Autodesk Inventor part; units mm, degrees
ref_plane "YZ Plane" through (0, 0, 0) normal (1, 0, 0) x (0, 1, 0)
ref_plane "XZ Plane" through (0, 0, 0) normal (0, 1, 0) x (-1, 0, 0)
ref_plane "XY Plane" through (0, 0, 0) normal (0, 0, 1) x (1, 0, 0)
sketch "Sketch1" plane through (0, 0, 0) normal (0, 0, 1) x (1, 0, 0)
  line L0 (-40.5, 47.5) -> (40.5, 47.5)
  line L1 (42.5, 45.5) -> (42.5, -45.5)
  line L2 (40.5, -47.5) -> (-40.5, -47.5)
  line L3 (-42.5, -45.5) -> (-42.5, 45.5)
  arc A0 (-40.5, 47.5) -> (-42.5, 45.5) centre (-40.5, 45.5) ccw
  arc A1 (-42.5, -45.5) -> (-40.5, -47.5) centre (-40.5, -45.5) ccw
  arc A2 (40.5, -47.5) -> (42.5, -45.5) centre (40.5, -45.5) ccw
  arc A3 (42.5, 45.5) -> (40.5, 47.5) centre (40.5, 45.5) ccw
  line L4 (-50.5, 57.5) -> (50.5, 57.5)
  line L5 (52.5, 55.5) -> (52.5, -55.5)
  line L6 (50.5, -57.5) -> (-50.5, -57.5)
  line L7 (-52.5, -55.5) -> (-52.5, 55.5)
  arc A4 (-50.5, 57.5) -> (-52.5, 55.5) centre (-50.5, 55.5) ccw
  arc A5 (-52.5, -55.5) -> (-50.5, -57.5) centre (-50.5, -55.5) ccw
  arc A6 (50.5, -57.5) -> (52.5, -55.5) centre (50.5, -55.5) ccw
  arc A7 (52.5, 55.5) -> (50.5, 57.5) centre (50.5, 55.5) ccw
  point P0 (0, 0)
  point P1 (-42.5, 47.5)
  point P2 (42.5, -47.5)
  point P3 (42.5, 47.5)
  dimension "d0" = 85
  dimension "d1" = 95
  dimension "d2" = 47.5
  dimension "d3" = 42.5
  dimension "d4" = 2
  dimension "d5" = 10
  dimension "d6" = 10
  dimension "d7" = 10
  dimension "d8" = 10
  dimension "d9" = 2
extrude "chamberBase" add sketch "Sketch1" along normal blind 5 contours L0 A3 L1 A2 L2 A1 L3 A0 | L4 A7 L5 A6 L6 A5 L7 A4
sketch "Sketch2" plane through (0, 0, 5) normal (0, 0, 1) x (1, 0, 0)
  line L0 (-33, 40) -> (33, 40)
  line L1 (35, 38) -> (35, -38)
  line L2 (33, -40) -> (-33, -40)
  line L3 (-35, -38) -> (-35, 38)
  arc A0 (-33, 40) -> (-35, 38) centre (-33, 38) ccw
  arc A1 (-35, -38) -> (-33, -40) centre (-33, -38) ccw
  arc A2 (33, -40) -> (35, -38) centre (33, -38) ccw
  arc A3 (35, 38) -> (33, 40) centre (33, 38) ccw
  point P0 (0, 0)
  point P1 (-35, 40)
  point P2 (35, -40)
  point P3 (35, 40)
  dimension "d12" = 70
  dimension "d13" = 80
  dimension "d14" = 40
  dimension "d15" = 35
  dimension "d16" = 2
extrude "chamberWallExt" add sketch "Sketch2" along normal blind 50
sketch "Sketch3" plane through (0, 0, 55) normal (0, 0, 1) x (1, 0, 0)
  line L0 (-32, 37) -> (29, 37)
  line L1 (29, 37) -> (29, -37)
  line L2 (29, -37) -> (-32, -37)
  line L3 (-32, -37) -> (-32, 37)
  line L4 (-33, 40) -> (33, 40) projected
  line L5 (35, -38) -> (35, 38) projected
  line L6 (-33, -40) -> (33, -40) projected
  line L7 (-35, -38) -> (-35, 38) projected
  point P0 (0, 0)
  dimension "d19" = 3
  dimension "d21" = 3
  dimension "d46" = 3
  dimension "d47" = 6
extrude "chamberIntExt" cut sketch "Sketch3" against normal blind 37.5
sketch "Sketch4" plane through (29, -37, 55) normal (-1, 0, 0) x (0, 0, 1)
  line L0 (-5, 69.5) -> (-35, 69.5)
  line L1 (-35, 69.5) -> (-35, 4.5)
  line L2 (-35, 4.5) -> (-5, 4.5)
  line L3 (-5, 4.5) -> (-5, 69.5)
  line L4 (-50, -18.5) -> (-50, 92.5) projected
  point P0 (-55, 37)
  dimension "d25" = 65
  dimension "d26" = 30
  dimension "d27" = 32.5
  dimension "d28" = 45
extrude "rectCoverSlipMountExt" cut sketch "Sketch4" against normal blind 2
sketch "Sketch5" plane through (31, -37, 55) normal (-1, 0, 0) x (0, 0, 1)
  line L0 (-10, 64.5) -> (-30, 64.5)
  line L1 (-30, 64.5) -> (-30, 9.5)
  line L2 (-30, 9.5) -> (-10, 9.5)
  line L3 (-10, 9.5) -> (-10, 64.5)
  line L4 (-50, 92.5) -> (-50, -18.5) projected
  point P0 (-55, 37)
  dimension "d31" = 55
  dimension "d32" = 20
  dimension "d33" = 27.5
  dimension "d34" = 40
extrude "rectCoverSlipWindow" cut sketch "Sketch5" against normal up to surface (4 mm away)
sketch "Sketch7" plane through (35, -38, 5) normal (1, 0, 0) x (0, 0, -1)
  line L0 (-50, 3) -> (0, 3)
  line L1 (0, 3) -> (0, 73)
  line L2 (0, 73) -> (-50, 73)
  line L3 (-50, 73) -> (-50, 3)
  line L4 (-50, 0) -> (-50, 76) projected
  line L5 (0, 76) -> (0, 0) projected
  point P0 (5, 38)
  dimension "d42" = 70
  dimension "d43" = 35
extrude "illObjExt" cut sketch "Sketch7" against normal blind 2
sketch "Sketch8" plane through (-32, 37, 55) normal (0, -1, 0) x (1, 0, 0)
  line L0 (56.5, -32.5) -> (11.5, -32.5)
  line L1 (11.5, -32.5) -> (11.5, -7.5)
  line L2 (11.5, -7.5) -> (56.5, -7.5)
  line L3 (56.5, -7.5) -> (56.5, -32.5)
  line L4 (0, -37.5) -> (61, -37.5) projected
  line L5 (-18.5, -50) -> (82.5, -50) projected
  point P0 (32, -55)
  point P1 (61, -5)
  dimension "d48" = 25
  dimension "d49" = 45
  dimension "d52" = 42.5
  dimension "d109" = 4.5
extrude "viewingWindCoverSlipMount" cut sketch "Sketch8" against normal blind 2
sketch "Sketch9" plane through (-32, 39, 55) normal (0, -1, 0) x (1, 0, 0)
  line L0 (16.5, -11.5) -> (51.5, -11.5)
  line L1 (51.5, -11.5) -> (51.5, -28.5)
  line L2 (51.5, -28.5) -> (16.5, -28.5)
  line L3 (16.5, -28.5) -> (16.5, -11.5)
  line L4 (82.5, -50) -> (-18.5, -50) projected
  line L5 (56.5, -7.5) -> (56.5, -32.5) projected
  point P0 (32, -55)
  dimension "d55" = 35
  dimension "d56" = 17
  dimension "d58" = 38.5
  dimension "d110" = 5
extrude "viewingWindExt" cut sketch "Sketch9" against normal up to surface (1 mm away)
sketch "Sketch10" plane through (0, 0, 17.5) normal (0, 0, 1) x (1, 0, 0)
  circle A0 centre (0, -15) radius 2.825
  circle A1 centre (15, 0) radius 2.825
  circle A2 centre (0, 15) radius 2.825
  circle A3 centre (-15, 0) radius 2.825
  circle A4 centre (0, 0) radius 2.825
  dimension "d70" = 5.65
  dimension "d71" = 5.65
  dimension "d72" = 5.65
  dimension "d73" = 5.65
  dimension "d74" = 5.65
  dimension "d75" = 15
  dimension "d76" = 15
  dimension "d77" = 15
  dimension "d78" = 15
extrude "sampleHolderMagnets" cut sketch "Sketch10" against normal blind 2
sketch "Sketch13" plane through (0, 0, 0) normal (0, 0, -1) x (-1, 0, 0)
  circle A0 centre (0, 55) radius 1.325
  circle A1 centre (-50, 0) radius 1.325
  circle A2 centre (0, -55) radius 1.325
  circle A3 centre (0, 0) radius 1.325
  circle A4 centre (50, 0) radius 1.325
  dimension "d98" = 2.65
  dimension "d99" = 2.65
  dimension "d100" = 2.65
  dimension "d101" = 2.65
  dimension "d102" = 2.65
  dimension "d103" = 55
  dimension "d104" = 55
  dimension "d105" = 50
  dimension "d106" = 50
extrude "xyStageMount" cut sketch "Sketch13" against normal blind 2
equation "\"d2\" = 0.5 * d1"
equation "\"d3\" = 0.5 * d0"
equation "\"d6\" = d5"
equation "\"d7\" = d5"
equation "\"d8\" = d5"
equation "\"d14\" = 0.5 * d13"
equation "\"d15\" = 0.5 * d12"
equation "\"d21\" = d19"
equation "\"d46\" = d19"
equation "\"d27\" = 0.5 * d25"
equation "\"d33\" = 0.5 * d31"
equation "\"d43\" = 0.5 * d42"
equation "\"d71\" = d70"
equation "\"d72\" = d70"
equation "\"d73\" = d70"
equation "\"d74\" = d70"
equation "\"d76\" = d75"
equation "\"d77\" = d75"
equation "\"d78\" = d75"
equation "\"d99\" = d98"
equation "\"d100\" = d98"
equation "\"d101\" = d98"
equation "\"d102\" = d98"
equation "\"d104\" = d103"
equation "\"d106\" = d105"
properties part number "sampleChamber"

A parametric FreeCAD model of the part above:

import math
import FreeCAD as App
import Part
import Sketcher

V = App.Vector


def add_polygon(sketch, points):
    """Adds a closed chain of lines whose ends are joined by coincident constraints."""
    first, n = sketch.GeometryCount, len(points)
    for a, b in zip(points, points[1:] + points[:1]):
        sketch.addGeometry(Part.LineSegment(App.Vector(*a, 0), App.Vector(*b, 0)), False)
    for i in range(n):
        sketch.addConstraint(Sketcher.Constraint("Coincident", first + i, 2, first + (i + 1) % n, 1))

doc = App.newDocument("Part")
body = doc.addObject("PartDesign::Body", "Body")

# Sketch on XY plane
sketch1 = body.newObject("Sketcher::SketchObject", "Sketch")
sketch1.AttachmentSupport = (doc.getObject("XY_Plane"), [""])
sketch1.MapMode = "FlatFace"
sketch1.addGeometry([
    Part.LineSegment(V(50.5, 57.5, 0), V(-50.5, 57.5, 0)),  # 0
    Part.ArcOfCircle(Part.Circle(V(-50.5, 55.5, 0), V(0, 0, 1), 2), math.radians(90), math.radians(180)),  # 1
    Part.LineSegment(V(-52.5, 55.5, 0), V(-52.5, -55.5, 0)),  # 2
    Part.ArcOfCircle(Part.Circle(V(-50.5, -55.5, 0), V(0, 0, 1), 2), math.radians(180), math.radians(270)),  # 3
    Part.LineSegment(V(-50.5, -57.5, 0), V(50.5, -57.5, 0)),  # 4
    Part.ArcOfCircle(Part.Circle(V(50.5, -55.5, 0), V(0, 0, 1), 2), math.radians(-90), math.radians(0)),  # 5
    Part.LineSegment(V(52.5, -55.5, 0), V(52.5, 55.5, 0)),  # 6
    Part.ArcOfCircle(Part.Circle(V(50.5, 55.5, 0), V(0, 0, 1), 2), math.radians(0), math.radians(90)),  # 7
], False)
sketch1.addConstraint([
    Sketcher.Constraint("Tangent", 0, 2, 1, 1),
    Sketcher.Constraint("Tangent", 1, 2, 2, 1),
    Sketcher.Constraint("Tangent", 2, 2, 3, 1),
    Sketcher.Constraint("Tangent", 3, 2, 4, 1),
    Sketcher.Constraint("Tangent", 4, 2, 5, 1),
    Sketcher.Constraint("Tangent", 5, 2, 6, 1),
    Sketcher.Constraint("Tangent", 6, 2, 7, 1),
    Sketcher.Constraint("Tangent", 7, 2, 0, 1),
    Sketcher.Constraint("Horizontal", 0),
    Sketcher.Constraint("Vertical", 2),
    Sketcher.Constraint("Horizontal", 4),
    Sketcher.Constraint("Vertical", 6),
    Sketcher.Constraint("Equal", 1, 3),
    Sketcher.Constraint("Equal", 3, 5),
    Sketcher.Constraint("Equal", 5, 7),
    Sketcher.Constraint("Symmetric", 1, 3, 5, 3, -1, 1),
    Sketcher.Constraint("Radius", 1, 2.0),
    Sketcher.Constraint("DistanceX", 0, 2, 0, 1, 101.0),
    Sketcher.Constraint("DistanceY", 2, 2, 2, 1, 111.0),
])
pad1 = body.newObject("PartDesign::Pad", "Pad")
pad1.Profile = sketch1
pad1.Length = 5

# Sketch on XY plane
sketch2 = body.newObject("Sketcher::SketchObject", "Sketch001")
sketch2.AttachmentSupport = (doc.getObject("XY_Plane"), [""])
sketch2.MapMode = "FlatFace"
sketch2.AttachmentOffset = App.Placement(V(0, 0, 5), App.Rotation())
sketch2.addGeometry([
    Part.LineSegment(V(33, 40, 0), V(-33, 40, 0)),  # 0
    Part.ArcOfCircle(Part.Circle(V(-33, 38, 0), V(0, 0, 1), 2), math.radians(90), math.radians(180)),  # 1
    Part.LineSegment(V(-35, 38, 0), V(-35, -38, 0)),  # 2
    Part.ArcOfCircle(Part.Circle(V(-33, -38, 0), V(0, 0, 1), 2), math.radians(180), math.radians(270)),  # 3
    Part.LineSegment(V(-33, -40, 0), V(33, -40, 0)),  # 4
    Part.ArcOfCircle(Part.Circle(V(33, -38, 0), V(0, 0, 1), 2), math.radians(-90), math.radians(0)),  # 5
    Part.LineSegment(V(35, -38, 0), V(35, 38, 0)),  # 6
    Part.ArcOfCircle(Part.Circle(V(33, 38, 0), V(0, 0, 1), 2), math.radians(0), math.radians(90)),  # 7
], False)
sketch2.addConstraint([
    Sketcher.Constraint("Tangent", 0, 2, 1, 1),
    Sketcher.Constraint("Tangent", 1, 2, 2, 1),
    Sketcher.Constraint("Tangent", 2, 2, 3, 1),
    Sketcher.Constraint("Tangent", 3, 2, 4, 1),
    Sketcher.Constraint("Tangent", 4, 2, 5, 1),
    Sketcher.Constraint("Tangent", 5, 2, 6, 1),
    Sketcher.Constraint("Tangent", 6, 2, 7, 1),
    Sketcher.Constraint("Tangent", 7, 2, 0, 1),
    Sketcher.Constraint("Horizontal", 0),
    Sketcher.Constraint("Vertical", 2),
    Sketcher.Constraint("Horizontal", 4),
    Sketcher.Constraint("Vertical", 6),
    Sketcher.Constraint("Equal", 1, 3),
    Sketcher.Constraint("Equal", 3, 5),
    Sketcher.Constraint("Equal", 5, 7),
    Sketcher.Constraint("Symmetric", 1, 3, 5, 3, -1, 1),
    Sketcher.Constraint("Radius", 1, 2.0),
    Sketcher.Constraint("DistanceY", -1, 1, 0, 2, 40.0),
    Sketcher.Constraint("DistanceX", 1, 2, -1, 1, 35.0),
])
pad2 = body.newObject("PartDesign::Pad", "Pad001")
pad2.Profile = sketch2
pad2.Length = 50

# Sketch on XY plane
sketch3 = body.newObject("Sketcher::SketchObject", "Sketch002")
sketch3.AttachmentSupport = (doc.getObject("XY_Plane"), [""])
sketch3.MapMode = "FlatFace"
sketch3.AttachmentOffset = App.Placement(V(0, 0, 55), App.Rotation())
add_polygon(sketch3, [(29, 37), (-32, 37), (-32, -37), (29, -37)])  # lines 0-3
sketch3.addConstraint([
    Sketcher.Constraint("Horizontal", 0),
    Sketcher.Constraint("Vertical", 1),
    Sketcher.Constraint("Horizontal", 2),
    Sketcher.Constraint("Vertical", 3),
    Sketcher.Constraint("DistanceX", 0, 2, 0, 1, 61.0),
    Sketcher.Constraint("DistanceY", 1, 2, 1, 1, 74.0),
    Sketcher.Constraint("DistanceX", 0, 2, -1, 1, 32.0),
    Sketcher.Constraint("DistanceY", -1, 1, 0, 2, 37.0),
])
pocket1 = body.newObject("PartDesign::Pocket", "Pocket")
pocket1.Profile = sketch3
pocket1.Length = 37.5

# Sketch on YZ plane
sketch4 = body.newObject("Sketcher::SketchObject", "Sketch003")
sketch4.AttachmentSupport = (doc.getObject("YZ_Plane"), [""])
sketch4.MapMode = "FlatFace"
sketch4.AttachmentOffset = App.Placement(V(0, 0, 29), App.Rotation())
add_polygon(sketch4, [(-32, 50), (32, 50), (32, 20), (-32, 20)])  # lines 0-3
sketch4.addConstraint([
    Sketcher.Constraint("Horizontal", 0),
    Sketcher.Constraint("Vertical", 1),
    Sketcher.Constraint("Horizontal", 2),
    Sketcher.Constraint("Vertical", 3),
    Sketcher.Constraint("DistanceX", 0, 1, 0, 2, 65.0),
    Sketcher.Constraint("DistanceY", 1, 2, 1, 1, 30.0),
    Sketcher.Constraint("DistanceX", -1, 1, 0, 2, 32.5),
    Sketcher.Constraint("DistanceY", -1, 1, 0, 2, 50.0),
])
pocket2 = body.newObject("PartDesign::Pocket", "Pocket001")
pocket2.Profile = sketch4
pocket2.Length = 2
pocket2.Reversed = True

# Sketch on YZ plane
sketch5 = body.newObject("Sketcher::SketchObject", "Sketch004")
sketch5.AttachmentSupport = (doc.getObject("YZ_Plane"), [""])
sketch5.MapMode = "FlatFace"
sketch5.AttachmentOffset = App.Placement(V(0, 0, 31), App.Rotation())
add_polygon(sketch5, [(-28, 45), (28, 45), (28, 25), (-28, 25)])  # lines 0-3
sketch5.addConstraint([
    Sketcher.Constraint("Horizontal", 0),
    Sketcher.Constraint("Vertical", 1),
    Sketcher.Constraint("Horizontal", 2),
    Sketcher.Constraint("Vertical", 3),
    Sketcher.Constraint("DistanceX", 0, 1, 0, 2, 55.0),
    Sketcher.Constraint("DistanceY", 1, 2, 1, 1, 20.0),
    Sketcher.Constraint("DistanceX", -1, 1, 0, 2, 27.5),
    Sketcher.Constraint("DistanceY", -1, 1, 0, 2, 45.0),
])
pocket3 = body.newObject("PartDesign::Pocket", "Pocket002")
pocket3.Profile = sketch5
pocket3.Length = 4
pocket3.Reversed = True

# Sketch on YZ plane
sketch6 = body.newObject("Sketcher::SketchObject", "Sketch005")
sketch6.AttachmentSupport = (doc.getObject("YZ_Plane"), [""])
sketch6.MapMode = "FlatFace"
sketch6.AttachmentOffset = App.Placement(V(0, 0, 35), App.Rotation())
add_polygon(sketch6, [(35, 55), (-35, 55), (-35, 5), (35, 5)])  # lines 0-3
sketch6.addConstraint([
    Sketcher.Constraint("Horizontal", 0),
    Sketcher.Constraint("Vertical", 1),
    Sketcher.Constraint("Horizontal", 2),
    Sketcher.Constraint("Vertical", 3),
    Sketcher.Constraint("DistanceX", 0, 2, 0, 1, 70.0),
    Sketcher.Constraint("DistanceX", 0, 2, -1, 1, 35.0),
    Sketcher.Constraint("DistanceY", 1, 2, 1, 1, 50.0),
    Sketcher.Constraint("DistanceY", -1, 1, 0, 2, 55.0),
])
pocket4 = body.newObject("PartDesign::Pocket", "Pocket003")
pocket4.Profile = sketch6
pocket4.Length = 2

# Sketch on XZ plane
sketch7 = body.newObject("Sketcher::SketchObject", "Sketch006")
sketch7.AttachmentSupport = (doc.getObject("XZ_Plane"), [""])
sketch7.MapMode = "FlatFace"
sketch7.AttachmentOffset = App.Placement(V(0, 0, -37), App.Rotation())
add_polygon(sketch7, [(-20, 22), (24, 22), (24, 48), (-20, 48)])  # lines 0-3
sketch7.addConstraint([
    Sketcher.Constraint("Horizontal", 0),
    Sketcher.Constraint("Vertical", 1),
    Sketcher.Constraint("Horizontal", 2),
    Sketcher.Constraint("Vertical", 3),
    Sketcher.Constraint("DistanceX", 0, 1, 0, 2, 45.0),
    Sketcher.Constraint("DistanceY", 1, 1, 1, 2, 25.0),
    Sketcher.Constraint("DistanceX", -1, 1, 0, 2, 24.5),
    Sketcher.Constraint("DistanceY", -1, 1, 0, 2, 22.5),
])
pocket5 = body.newObject("PartDesign::Pocket", "Pocket004")
pocket5.Profile = sketch7
pocket5.Length = 2

# Sketch on XZ plane
sketch8 = body.newObject("Sketcher::SketchObject", "Sketch007")
sketch8.AttachmentSupport = (doc.getObject("XZ_Plane"), [""])
sketch8.MapMode = "FlatFace"
sketch8.AttachmentOffset = App.Placement(V(0, 0, -39), App.Rotation())
add_polygon(sketch8, [(20, 44), (-16, 44), (-16, 26), (20, 26)])  # lines 0-3
sketch8.addConstraint([
    Sketcher.Constraint("Horizontal", 0),
    Sketcher.Constraint("Vertical", 1),
    Sketcher.Constraint("Horizontal", 2),
    Sketcher.Constraint("Vertical", 3),
    Sketcher.Constraint("DistanceX", 0, 2, 0, 1, 35.0),
    Sketcher.Constraint("DistanceY", 1, 2, 1, 1, 17.0),
    Sketcher.Constraint("DistanceX", 0, 2, -1, 1, 15.5),
    Sketcher.Constraint("DistanceY", -1, 1, 0, 2, 43.5),
])
pocket6 = body.newObject("PartDesign::Pocket", "Pocket005")
pocket6.Profile = sketch8
pocket6.Length = 1

# Sketch on XY plane
sketch9 = body.newObject("Sketcher::SketchObject", "Sketch008")
sketch9.AttachmentSupport = (doc.getObject("XY_Plane"), [""])
sketch9.MapMode = "FlatFace"
sketch9.AttachmentOffset = App.Placement(V(0, 0, 17.5), App.Rotation())
sketch9.addGeometry([
    Part.Circle(V(0, -15, 0), V(0, 0, 1), 2.8),  # 0
    Part.Circle(V(15, 0, 0), V(0, 0, 1), 2.8),  # 1
    Part.Circle(V(0, 15, 0), V(0, 0, 1), 2.8),  # 2
    Part.Circle(V(-15, 0, 0), V(0, 0, 1), 2.8),  # 3
    Part.Circle(V(0, 0, 0), V(0, 0, 1), 2.8),  # 4
], False)
sketch9.addConstraint([
    Sketcher.Constraint("Coincident", 4, 3, -1, 1),
    Sketcher.Constraint("Equal", 0, 1),
    Sketcher.Constraint("Equal", 1, 2),
    Sketcher.Constraint("Equal", 2, 3),
    Sketcher.Constraint("Equal", 3, 4),
    Sketcher.Constraint("Symmetric", 0, 3, 2, 3, -1, 1),
    Sketcher.Constraint("Symmetric", 1, 3, 3, 3, -1, 1),
    Sketcher.Constraint("PointOnObject", 0, 3, -2),
    Sketcher.Constraint("PointOnObject", 1, 3, -1),
    Sketcher.Constraint("Diameter", 0, 5.65),
    Sketcher.Constraint("DistanceY", 0, 3, -1, 1, 15.0),
    Sketcher.Constraint("DistanceX", -1, 1, 1, 3, 15.0),
])
pocket7 = body.newObject("PartDesign::Pocket", "Pocket006")
pocket7.Profile = sketch9
pocket7.Length = 2

# Sketch on XY plane
sketch10 = body.newObject("Sketcher::SketchObject", "Sketch009")
sketch10.AttachmentSupport = (doc.getObject("XY_Plane"), [""])
sketch10.MapMode = "FlatFace"
sketch10.addGeometry([
    Part.Circle(V(0, 55, 0), V(0, 0, 1), 1.3),  # 0
    Part.Circle(V(50, 0, 0), V(0, 0, 1), 1.3),  # 1
    Part.Circle(V(0, -55, 0), V(0, 0, 1), 1.3),  # 2
    Part.Circle(V(0, 0, 0), V(0, 0, 1), 1.3),  # 3
    Part.Circle(V(-50, 0, 0), V(0, 0, 1), 1.3),  # 4
], False)
sketch10.addConstraint([
    Sketcher.Constraint("Coincident", 3, 3, -1, 1),
    Sketcher.Constraint("Equal", 0, 1),
    Sketcher.Constraint("Equal", 1, 2),
    Sketcher.Constraint("Equal", 2, 3),
    Sketcher.Constraint("Equal", 3, 4),
    Sketcher.Constraint("Symmetric", 0, 3, 2, 3, -1, 1),
    Sketcher.Constraint("Symmetric", 1, 3, 4, 3, -1, 1),
    Sketcher.Constraint("PointOnObject", 0, 3, -2),
    Sketcher.Constraint("PointOnObject", 1, 3, -1),
    Sketcher.Constraint("Diameter", 0, 2.65),
    Sketcher.Constraint("DistanceY", -1, 1, 0, 3, 55.0),
    Sketcher.Constraint("DistanceX", -1, 1, 1, 3, 50.0),
])
pocket8 = body.newObject("PartDesign::Pocket", "Pocket007")
pocket8.Profile = sketch10
pocket8.Length = 2
pocket8.Reversed = True

doc.recompute()
